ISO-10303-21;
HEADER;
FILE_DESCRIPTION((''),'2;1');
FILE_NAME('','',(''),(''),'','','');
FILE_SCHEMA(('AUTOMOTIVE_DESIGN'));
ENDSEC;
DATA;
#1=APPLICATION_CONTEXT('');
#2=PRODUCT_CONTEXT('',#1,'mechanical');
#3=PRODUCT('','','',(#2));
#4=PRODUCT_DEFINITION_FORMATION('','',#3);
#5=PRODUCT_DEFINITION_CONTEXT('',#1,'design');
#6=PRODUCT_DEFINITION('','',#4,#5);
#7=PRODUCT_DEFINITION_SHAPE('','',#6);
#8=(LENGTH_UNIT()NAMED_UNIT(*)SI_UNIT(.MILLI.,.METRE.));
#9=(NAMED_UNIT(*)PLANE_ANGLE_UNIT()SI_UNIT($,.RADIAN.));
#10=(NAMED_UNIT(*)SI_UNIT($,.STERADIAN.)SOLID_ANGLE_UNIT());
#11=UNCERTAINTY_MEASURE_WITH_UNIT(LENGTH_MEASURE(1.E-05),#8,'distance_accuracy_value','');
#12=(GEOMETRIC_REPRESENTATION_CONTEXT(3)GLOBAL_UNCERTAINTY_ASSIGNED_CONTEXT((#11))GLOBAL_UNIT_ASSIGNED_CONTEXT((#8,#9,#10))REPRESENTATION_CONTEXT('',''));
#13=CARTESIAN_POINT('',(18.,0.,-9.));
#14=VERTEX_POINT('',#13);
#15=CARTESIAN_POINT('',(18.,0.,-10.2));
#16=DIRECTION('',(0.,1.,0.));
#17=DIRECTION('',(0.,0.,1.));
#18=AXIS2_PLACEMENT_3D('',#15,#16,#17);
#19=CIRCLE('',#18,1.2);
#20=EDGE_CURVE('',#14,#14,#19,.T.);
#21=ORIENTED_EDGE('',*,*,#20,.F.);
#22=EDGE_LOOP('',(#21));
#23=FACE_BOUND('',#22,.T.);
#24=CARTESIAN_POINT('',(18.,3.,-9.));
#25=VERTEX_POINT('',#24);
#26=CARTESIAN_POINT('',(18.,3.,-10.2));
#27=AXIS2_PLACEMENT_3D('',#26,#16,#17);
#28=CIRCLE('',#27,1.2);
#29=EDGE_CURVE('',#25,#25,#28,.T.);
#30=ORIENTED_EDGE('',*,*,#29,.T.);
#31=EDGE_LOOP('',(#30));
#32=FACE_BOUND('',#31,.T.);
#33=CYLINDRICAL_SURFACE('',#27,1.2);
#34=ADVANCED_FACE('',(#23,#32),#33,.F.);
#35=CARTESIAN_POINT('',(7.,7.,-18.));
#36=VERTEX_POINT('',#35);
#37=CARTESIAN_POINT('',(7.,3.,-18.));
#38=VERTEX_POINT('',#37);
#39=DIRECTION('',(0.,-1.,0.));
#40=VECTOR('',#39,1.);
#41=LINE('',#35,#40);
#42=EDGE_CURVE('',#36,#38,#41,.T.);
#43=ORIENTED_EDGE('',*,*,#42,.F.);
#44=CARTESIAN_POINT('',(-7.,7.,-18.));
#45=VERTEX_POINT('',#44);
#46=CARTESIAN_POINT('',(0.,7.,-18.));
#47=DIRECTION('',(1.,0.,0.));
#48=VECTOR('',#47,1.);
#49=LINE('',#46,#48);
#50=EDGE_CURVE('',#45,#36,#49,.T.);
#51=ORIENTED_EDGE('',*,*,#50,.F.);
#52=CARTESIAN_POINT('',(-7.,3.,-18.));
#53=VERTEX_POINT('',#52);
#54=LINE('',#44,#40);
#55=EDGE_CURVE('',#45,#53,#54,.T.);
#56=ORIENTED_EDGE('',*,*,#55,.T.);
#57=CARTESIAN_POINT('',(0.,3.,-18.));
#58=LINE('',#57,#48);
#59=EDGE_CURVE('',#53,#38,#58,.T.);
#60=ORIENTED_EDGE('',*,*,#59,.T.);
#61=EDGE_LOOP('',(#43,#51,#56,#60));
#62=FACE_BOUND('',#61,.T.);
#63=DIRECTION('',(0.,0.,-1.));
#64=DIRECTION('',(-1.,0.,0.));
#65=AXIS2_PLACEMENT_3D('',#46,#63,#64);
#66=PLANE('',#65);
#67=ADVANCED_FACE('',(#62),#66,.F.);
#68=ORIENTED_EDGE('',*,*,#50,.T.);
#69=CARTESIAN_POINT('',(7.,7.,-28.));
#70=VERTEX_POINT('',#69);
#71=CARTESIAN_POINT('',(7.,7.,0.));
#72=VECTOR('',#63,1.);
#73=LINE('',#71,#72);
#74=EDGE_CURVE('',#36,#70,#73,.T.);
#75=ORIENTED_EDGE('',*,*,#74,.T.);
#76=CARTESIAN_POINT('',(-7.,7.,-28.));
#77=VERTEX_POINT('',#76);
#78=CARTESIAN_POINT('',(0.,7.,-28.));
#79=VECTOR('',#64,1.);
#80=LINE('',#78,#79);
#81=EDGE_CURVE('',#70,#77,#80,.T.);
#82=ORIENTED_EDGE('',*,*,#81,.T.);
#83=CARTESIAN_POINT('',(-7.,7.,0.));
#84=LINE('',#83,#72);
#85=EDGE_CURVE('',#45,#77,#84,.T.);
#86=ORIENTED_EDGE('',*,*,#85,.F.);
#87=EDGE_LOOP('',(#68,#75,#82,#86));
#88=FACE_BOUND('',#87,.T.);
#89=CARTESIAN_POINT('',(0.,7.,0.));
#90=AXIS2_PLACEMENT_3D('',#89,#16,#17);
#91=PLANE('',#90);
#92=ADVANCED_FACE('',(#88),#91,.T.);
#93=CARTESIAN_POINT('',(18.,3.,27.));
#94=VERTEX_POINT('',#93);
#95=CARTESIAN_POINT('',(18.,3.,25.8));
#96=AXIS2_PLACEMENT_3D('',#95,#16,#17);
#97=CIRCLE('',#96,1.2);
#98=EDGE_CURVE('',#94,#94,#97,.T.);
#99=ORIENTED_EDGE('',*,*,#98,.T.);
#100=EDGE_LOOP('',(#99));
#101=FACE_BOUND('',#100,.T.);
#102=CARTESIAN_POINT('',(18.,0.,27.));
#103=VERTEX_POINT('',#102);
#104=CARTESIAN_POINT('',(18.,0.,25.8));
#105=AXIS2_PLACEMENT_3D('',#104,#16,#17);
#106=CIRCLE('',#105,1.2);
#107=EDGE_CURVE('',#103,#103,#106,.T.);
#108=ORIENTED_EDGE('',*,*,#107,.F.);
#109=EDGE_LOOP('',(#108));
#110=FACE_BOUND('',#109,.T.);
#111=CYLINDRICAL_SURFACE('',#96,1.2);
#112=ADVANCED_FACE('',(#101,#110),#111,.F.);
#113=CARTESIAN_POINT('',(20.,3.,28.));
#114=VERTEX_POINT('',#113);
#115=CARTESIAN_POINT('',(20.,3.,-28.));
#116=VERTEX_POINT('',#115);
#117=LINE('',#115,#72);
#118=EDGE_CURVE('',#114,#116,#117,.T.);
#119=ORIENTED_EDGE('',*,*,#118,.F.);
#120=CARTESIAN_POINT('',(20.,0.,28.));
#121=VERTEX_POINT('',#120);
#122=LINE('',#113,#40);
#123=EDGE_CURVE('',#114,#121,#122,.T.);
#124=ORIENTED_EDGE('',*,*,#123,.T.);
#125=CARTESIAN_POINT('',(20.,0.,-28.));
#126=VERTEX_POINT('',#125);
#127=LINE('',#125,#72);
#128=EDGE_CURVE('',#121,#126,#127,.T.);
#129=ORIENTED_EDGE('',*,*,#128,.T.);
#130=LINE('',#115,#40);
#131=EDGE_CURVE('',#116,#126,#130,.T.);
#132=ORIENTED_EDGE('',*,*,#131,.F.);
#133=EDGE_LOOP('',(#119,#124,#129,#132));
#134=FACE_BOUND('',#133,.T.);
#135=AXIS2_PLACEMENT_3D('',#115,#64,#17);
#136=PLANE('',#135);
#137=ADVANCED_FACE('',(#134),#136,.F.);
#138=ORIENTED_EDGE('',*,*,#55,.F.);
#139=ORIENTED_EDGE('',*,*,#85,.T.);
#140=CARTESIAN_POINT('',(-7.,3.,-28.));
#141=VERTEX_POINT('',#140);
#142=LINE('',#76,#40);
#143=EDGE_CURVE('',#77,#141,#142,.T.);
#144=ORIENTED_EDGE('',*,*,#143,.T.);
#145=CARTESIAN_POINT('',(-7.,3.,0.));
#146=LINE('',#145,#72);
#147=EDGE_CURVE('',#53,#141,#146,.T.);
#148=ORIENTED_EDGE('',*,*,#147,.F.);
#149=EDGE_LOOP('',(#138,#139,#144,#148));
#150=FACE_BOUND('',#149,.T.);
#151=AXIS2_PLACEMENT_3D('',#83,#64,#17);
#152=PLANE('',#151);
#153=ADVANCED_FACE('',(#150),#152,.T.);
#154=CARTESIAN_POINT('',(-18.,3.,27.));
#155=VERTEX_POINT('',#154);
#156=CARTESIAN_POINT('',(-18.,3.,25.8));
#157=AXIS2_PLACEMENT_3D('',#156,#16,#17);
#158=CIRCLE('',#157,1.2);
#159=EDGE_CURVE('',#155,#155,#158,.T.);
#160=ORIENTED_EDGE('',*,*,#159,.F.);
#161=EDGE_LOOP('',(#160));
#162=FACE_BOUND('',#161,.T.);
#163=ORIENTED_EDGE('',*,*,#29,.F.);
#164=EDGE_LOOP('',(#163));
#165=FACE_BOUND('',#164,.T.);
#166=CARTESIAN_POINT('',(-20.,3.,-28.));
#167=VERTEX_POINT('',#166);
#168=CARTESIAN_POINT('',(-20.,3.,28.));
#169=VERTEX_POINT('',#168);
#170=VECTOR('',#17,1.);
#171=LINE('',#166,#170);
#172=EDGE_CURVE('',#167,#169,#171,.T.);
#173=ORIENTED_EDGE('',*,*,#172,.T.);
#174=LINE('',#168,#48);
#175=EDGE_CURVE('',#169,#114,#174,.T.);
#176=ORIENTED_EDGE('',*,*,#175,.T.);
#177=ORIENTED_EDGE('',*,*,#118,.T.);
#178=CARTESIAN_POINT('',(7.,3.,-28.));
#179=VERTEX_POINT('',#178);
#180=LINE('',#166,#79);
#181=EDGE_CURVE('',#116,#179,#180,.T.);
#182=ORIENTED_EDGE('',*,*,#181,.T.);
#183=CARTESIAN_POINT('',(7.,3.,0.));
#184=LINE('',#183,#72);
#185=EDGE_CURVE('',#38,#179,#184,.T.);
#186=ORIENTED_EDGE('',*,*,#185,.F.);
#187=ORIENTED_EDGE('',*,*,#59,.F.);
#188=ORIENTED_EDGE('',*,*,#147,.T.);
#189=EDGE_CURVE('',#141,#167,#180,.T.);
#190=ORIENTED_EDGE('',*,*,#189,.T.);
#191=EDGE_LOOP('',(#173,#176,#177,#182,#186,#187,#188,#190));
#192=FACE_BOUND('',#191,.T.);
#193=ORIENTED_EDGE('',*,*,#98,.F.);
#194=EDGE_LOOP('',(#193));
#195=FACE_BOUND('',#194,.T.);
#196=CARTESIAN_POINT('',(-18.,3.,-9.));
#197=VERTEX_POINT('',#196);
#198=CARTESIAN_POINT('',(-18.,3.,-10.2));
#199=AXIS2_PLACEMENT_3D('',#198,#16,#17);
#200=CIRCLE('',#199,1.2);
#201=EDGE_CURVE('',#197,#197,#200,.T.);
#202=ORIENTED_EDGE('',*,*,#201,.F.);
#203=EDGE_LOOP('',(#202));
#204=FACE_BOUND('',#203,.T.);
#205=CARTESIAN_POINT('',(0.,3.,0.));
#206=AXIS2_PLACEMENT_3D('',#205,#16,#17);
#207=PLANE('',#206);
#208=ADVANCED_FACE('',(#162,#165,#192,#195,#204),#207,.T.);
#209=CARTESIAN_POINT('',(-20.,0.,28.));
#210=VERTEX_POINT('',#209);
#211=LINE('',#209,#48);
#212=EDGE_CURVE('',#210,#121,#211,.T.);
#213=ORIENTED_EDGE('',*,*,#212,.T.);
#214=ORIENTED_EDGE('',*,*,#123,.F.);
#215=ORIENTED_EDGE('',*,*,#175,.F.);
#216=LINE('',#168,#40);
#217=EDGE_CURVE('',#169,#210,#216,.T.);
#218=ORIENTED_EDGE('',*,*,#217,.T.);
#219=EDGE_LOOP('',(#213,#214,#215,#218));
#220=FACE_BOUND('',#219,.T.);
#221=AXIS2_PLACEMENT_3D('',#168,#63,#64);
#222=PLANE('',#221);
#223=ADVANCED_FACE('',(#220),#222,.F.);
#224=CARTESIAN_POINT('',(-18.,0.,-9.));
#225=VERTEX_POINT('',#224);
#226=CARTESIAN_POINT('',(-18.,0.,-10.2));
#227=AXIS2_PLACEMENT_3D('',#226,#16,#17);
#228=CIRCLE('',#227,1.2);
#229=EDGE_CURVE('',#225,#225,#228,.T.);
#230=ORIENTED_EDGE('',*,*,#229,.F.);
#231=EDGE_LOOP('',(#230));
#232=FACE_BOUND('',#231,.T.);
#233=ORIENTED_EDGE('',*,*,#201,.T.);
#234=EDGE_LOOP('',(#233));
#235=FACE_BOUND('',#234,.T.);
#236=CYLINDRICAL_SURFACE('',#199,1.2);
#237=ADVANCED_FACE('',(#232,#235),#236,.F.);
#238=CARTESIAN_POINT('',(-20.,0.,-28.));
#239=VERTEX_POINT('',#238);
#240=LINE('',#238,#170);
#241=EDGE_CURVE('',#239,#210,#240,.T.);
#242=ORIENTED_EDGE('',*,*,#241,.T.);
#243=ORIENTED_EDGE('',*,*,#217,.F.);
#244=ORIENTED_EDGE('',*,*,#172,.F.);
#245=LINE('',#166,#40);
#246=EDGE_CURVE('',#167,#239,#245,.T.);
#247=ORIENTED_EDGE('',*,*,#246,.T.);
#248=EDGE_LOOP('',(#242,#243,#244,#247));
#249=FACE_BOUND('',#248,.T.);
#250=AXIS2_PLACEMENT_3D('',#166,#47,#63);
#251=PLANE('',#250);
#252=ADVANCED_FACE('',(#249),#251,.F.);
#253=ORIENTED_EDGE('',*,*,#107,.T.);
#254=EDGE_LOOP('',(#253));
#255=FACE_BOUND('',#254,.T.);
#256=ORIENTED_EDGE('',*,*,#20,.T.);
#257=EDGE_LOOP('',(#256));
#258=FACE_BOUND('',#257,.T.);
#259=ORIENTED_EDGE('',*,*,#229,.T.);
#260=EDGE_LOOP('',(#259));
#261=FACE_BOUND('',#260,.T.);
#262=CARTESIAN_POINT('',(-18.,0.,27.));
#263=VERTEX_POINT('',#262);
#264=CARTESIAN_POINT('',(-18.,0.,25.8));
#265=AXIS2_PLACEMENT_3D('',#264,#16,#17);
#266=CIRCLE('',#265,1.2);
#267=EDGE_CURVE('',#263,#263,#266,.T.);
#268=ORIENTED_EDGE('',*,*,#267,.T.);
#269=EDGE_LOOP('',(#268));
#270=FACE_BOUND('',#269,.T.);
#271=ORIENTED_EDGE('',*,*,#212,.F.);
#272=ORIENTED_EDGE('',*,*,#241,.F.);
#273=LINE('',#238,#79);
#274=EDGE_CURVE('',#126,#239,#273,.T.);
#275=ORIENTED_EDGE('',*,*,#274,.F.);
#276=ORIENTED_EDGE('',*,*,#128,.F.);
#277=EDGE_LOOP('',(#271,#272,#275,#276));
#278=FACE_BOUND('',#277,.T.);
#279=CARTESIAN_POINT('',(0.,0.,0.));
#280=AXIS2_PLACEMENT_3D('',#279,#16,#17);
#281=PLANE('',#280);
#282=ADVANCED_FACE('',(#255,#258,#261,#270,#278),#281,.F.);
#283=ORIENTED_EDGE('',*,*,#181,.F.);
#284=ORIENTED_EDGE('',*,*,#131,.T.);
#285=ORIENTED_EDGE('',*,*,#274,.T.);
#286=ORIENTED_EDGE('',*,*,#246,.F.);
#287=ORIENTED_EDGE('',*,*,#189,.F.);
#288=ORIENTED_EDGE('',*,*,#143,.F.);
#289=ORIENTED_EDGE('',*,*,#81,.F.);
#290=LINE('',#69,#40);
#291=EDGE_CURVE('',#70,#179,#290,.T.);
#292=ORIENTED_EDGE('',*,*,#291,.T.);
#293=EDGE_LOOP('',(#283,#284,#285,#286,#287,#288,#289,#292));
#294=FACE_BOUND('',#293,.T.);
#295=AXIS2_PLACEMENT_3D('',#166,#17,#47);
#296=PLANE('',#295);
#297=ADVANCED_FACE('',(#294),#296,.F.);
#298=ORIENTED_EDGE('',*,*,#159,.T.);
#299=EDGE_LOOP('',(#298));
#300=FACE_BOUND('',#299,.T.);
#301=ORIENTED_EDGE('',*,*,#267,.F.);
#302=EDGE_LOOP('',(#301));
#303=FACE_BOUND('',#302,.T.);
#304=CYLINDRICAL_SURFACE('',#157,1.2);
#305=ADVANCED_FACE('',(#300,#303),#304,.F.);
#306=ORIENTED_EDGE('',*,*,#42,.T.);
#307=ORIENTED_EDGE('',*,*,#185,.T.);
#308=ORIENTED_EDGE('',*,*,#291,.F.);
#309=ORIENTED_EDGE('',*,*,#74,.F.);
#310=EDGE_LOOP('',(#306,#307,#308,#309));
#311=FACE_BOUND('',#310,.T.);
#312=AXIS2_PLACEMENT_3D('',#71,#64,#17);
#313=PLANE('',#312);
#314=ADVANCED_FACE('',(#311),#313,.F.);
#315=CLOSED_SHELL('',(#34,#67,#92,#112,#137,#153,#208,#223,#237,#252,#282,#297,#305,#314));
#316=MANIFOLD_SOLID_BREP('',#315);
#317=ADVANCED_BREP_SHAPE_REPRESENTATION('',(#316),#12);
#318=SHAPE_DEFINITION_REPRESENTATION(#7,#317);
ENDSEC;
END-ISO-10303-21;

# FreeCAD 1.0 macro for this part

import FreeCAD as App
import Part
import Sketcher


def add_polygon(sketch, points):
    """Adds a closed chain of lines whose ends are joined by coincident constraints."""
    first, n = sketch.GeometryCount, len(points)
    for a, b in zip(points, points[1:] + points[:1]):
        sketch.addGeometry(Part.LineSegment(App.Vector(*a, 0), App.Vector(*b, 0)), False)
    for i in range(n):
        sketch.addConstraint(Sketcher.Constraint("Coincident", first + i, 2, first + (i + 1) % n, 1))

doc = App.newDocument("Part")
params = doc.addObject("Spreadsheet::Sheet", "Params")
for row, (alias, value) in enumerate([
    ("sketch1_width", "40 mm"),
    ("sketch1_height", "56 mm"),
    ("pad1_length", "3 mm"),
    ("sketch2_diameter", "2.4 mm"),
    ("hole_diameter", "2.4 mm"),
    ("sketch3_width", "14 mm"),
    ("sketch3_height", "10 mm"),
    ("pad2_length", "4 mm"),
], start=1):
    params.set(f"A{row}", alias)
    params.set(f"B{row}", "=" + value)
    params.setAlias(f"B{row}", alias)

body = doc.addObject("PartDesign::Body", "Body")

# Sketch on XZ plane
sketch1 = body.newObject("Sketcher::SketchObject", "Sketch")
sketch1.AttachmentSupport = (doc.getObject("XZ_Plane"), [""])
sketch1.MapMode = "FlatFace"
add_polygon(sketch1, [(-20, -28), (-20, 28), (20, 28), (20, -28)])  # lines 0-3
sketch1.addConstraint([
    Sketcher.Constraint("Vertical", 0),
    Sketcher.Constraint("Horizontal", 1),
    Sketcher.Constraint("Vertical", 2),
    Sketcher.Constraint("Horizontal", 3),
    Sketcher.Constraint("Symmetric", 0, 2, 2, 2, -1, 1),
    Sketcher.Constraint("DistanceX", 1, 1, 1, 2, 40.0),
    Sketcher.Constraint("DistanceY", 0, 1, 0, 2, 56.0),
])
sketch1.setExpression("Constraints[9]", "Params.sketch1_width")
sketch1.setExpression("Constraints[10]", "Params.sketch1_height")
pad1 = body.newObject("PartDesign::Pad", "Pad")
pad1.Profile = sketch1
pad1.setExpression("Length", "Params.pad1_length")
pad1.Reversed = True

# Sketch on XZ plane
sketch2 = body.newObject("Sketcher::SketchObject", "Sketch001")
sketch2.AttachmentSupport = (doc.getObject("XZ_Plane"), [""])
sketch2.MapMode = "FlatFace"
sketch2.AttachmentOffset = App.Placement(App.Vector(0, 0, -3), App.Rotation())
sketch2.addGeometry([
    Part.Circle(App.Vector(-18, -10.2, 0), App.Vector(0, 0, 1), 1.2),
    Part.Circle(App.Vector(18, -10.2, 0), App.Vector(0, 0, 1), 1.2),
    Part.Circle(App.Vector(18, 25.8, 0), App.Vector(0, 0, 1), 1.2),
    Part.Circle(App.Vector(-18, 25.8, 0), App.Vector(0, 0, 1), 1.2),
], False)
sketch2.addConstraint([
    Sketcher.Constraint("Equal", 0, 1),
    Sketcher.Constraint("Equal", 1, 2),
    Sketcher.Constraint("Equal", 2, 3),
    Sketcher.Constraint("Symmetric", 0, 3, 1, 3, -2),
    Sketcher.Constraint("Symmetric", 2, 3, 3, 3, -2),
    Sketcher.Constraint("Vertical", 1, 3, 2, 3),
    Sketcher.Constraint("Diameter", 0, 2.4),
    Sketcher.Constraint("DistanceX", 0, 3, -1, 1, 18.0),
    Sketcher.Constraint("DistanceY", 1, 3, 2, 3, 36.0),
    Sketcher.Constraint("DistanceY", 0, 3, -1, 1, 10.2),
])
sketch2.setExpression("Constraints[6]", "Params.sketch2_diameter")
doc.recompute()
hole = body.newObject("PartDesign::Hole", "Hole")
hole.Profile = sketch2
hole.ThreadType = "None"
hole.setExpression("Diameter", "Params.hole_diameter")
hole.DepthType = "ThroughAll"
hole.Reversed = True

# Sketch on XZ plane
sketch3 = body.newObject("Sketcher::SketchObject", "Sketch002")
sketch3.AttachmentSupport = (doc.getObject("XZ_Plane"), [""])
sketch3.MapMode = "FlatFace"
sketch3.AttachmentOffset = App.Placement(App.Vector(0, 0, -3), App.Rotation())
add_polygon(sketch3, [(-7, -28), (-7, -18), (7, -18), (7, -28)])  # lines 0-3
sketch3.addConstraint([
    Sketcher.Constraint("Vertical", 0),
    Sketcher.Constraint("Horizontal", 1),
    Sketcher.Constraint("Vertical", 2),
    Sketcher.Constraint("Horizontal", 3),
    Sketcher.Constraint("DistanceX", 1, 1, 1, 2, 14.0),
    Sketcher.Constraint("DistanceY", 0, 1, 0, 2, 10.0),
    Sketcher.Constraint("DistanceX", 0, 2, -1, 1, 7.0),
    Sketcher.Constraint("DistanceY", 0, 2, -1, 1, 18.0),
])
sketch3.setExpression("Constraints[8]", "Params.sketch3_width")
sketch3.setExpression("Constraints[9]", "Params.sketch3_height")
pad2 = body.newObject("PartDesign::Pad", "Pad001")
pad2.Profile = sketch3
pad2.setExpression("Length", "Params.pad2_length")
pad2.Reversed = True

doc.recompute()
